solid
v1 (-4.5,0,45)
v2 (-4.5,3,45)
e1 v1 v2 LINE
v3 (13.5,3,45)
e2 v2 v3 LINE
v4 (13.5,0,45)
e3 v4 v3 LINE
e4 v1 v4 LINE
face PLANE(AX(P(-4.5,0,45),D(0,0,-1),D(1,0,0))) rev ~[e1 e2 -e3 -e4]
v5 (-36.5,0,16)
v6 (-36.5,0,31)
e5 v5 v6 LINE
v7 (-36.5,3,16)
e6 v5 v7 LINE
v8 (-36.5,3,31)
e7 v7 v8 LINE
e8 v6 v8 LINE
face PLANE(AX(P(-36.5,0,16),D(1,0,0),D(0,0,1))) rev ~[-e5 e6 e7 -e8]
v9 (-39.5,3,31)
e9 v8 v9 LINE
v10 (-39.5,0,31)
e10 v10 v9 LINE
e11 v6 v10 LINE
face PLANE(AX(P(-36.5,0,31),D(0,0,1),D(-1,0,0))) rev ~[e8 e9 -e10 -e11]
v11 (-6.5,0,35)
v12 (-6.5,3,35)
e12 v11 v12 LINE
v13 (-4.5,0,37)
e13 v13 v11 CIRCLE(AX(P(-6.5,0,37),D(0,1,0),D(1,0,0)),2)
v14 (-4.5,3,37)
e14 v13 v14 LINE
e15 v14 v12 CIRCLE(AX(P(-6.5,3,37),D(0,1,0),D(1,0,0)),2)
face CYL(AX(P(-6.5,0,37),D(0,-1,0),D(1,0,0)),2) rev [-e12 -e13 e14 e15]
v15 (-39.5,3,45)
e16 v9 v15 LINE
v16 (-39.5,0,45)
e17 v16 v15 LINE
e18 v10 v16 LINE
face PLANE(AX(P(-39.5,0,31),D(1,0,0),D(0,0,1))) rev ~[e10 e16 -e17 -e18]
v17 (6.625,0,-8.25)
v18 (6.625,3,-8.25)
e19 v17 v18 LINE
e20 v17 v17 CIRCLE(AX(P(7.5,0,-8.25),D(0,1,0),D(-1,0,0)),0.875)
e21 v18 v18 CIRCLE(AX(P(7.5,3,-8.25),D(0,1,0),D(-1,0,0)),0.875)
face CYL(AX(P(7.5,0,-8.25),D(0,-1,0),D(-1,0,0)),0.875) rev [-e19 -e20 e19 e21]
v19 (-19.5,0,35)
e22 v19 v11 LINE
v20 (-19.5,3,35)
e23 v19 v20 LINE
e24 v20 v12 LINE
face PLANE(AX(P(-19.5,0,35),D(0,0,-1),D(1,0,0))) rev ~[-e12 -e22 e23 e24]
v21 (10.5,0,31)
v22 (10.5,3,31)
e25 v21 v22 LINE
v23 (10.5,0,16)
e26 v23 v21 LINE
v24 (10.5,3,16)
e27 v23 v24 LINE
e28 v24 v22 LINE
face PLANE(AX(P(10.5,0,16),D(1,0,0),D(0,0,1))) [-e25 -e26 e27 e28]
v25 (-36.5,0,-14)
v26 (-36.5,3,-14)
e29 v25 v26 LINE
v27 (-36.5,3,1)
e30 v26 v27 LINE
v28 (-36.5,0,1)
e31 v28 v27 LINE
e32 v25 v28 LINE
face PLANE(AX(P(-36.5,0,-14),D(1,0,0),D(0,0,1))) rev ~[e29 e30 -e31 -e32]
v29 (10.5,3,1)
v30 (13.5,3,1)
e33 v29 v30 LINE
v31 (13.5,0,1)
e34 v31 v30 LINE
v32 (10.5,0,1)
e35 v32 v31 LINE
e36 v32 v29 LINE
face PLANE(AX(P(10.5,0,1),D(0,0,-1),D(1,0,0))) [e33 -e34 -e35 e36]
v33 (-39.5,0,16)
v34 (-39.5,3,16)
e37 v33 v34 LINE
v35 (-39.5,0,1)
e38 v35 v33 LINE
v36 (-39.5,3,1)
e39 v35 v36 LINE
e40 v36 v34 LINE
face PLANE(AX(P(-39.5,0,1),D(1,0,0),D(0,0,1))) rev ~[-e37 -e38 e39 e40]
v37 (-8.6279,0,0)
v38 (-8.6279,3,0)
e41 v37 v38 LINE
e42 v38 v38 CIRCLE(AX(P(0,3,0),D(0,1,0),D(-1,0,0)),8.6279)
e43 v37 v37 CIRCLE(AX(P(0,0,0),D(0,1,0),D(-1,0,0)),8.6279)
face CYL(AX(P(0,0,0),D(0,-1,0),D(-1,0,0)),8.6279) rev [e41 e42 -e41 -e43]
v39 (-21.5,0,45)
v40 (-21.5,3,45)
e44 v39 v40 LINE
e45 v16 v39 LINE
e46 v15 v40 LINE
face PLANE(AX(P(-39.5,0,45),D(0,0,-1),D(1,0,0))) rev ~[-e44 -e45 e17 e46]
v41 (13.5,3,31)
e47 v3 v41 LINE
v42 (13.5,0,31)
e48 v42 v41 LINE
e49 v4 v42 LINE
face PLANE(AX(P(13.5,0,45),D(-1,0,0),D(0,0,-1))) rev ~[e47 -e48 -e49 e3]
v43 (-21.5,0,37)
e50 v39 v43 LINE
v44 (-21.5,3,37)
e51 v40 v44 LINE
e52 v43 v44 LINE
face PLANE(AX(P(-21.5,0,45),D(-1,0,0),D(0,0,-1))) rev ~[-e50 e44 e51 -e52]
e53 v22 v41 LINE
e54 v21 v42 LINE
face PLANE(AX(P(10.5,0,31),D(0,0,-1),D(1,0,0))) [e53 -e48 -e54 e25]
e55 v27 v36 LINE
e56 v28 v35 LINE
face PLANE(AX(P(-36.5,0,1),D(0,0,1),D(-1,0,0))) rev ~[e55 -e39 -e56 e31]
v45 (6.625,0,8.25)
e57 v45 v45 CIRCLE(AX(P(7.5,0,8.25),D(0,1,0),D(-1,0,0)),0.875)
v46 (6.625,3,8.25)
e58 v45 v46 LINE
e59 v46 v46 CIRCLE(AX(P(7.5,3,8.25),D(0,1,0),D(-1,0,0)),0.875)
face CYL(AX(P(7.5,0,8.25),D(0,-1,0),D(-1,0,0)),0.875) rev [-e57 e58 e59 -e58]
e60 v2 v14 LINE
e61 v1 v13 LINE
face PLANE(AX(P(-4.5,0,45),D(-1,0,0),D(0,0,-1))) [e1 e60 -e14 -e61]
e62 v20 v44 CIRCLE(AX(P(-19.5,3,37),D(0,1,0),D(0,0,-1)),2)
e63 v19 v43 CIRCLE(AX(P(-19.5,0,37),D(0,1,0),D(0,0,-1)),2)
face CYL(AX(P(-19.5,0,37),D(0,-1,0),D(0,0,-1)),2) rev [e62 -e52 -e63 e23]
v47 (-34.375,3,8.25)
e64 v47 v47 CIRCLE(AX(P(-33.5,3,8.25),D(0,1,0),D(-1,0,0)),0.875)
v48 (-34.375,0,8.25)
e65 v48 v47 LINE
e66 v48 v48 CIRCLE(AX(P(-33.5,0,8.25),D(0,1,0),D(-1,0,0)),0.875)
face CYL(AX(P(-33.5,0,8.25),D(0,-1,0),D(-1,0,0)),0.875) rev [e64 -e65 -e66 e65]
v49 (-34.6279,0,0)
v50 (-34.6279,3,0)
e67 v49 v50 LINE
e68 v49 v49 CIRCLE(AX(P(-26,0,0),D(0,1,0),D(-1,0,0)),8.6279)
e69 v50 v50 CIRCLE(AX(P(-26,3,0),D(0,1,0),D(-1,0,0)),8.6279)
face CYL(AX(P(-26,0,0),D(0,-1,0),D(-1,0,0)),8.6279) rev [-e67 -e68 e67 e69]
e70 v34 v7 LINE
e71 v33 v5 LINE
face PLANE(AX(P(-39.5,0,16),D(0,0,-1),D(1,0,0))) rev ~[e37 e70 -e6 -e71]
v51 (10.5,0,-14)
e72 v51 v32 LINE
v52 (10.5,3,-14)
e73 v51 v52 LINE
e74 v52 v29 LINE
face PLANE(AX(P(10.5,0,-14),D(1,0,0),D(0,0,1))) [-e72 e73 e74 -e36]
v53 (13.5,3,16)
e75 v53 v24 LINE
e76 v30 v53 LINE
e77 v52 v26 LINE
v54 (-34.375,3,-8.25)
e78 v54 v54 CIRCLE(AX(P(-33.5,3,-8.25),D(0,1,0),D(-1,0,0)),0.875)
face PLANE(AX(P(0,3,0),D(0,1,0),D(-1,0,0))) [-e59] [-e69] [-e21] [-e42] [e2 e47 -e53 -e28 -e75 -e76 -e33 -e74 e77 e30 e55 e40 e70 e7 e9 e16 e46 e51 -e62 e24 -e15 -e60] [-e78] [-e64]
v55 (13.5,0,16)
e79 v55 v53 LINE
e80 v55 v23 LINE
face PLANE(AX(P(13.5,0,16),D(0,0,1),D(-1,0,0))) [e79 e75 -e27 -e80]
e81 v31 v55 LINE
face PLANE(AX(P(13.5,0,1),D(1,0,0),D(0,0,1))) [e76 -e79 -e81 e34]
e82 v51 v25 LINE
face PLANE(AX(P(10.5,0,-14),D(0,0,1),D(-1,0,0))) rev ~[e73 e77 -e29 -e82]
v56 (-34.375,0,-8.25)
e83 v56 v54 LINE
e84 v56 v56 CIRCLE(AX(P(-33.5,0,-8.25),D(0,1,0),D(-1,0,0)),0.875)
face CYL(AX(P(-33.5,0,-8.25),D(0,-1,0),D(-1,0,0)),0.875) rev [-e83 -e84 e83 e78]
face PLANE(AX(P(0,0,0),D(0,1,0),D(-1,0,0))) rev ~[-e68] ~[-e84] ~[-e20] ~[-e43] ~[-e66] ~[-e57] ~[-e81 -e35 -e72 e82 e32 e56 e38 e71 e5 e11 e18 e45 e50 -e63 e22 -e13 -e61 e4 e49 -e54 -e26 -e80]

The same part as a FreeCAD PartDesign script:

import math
import FreeCAD as App
import Part
import Sketcher
from FreeCAD import Vector
Q = App.Units.Quantity

doc = App.newDocument("Part")
body = doc.addObject("PartDesign::Body", "Body")

# Sketch on XZ plane
sketch1 = body.newObject("Sketcher::SketchObject", "Sketch")
sketch1.AttachmentSupport = (doc.getObject("XZ_Plane"), [""])
sketch1.MapMode = "FlatFace"
sketch1.addGeometry([
    Part.LineSegment(Vector(10.5, 1, 0), Vector(10.5, -14, 0)),  # 0
    Part.LineSegment(Vector(10.5, -14, 0), Vector(-36.5, -14, 0)),  # 1
    Part.LineSegment(Vector(-36.5, -14, 0), Vector(-36.5, 1, 0)),  # 2
    Part.LineSegment(Vector(-36.5, 1, 0), Vector(-39.5, 1, 0)),  # 3
    Part.LineSegment(Vector(-39.5, 1, 0), Vector(-39.5, 16, 0)),  # 4
    Part.LineSegment(Vector(-39.5, 16, 0), Vector(-36.5, 16, 0)),  # 5
    Part.LineSegment(Vector(-36.5, 16, 0), Vector(-36.5, 31, 0)),  # 6
    Part.LineSegment(Vector(-36.5, 31, 0), Vector(-39.5, 31, 0)),  # 7
    Part.LineSegment(Vector(-39.5, 31, 0), Vector(-39.5, 45, 0)),  # 8
    Part.LineSegment(Vector(-39.5, 45, 0), Vector(-21.5, 45, 0)),  # 9
    Part.LineSegment(Vector(-21.5, 45, 0), Vector(-21.5, 37, 0)),  # 10
    Part.ArcOfCircle(Part.Circle(Vector(-19.5, 37, 0), Vector(0, 0, 1), 2), math.radians(180), math.radians(270)),  # 11
    Part.LineSegment(Vector(-19.5, 35, 0), Vector(-6.5, 35, 0)),  # 12
    Part.ArcOfCircle(Part.Circle(Vector(-6.5, 37, 0), Vector(0, 0, 1), 2), math.radians(-90), math.radians(0)),  # 13
    Part.LineSegment(Vector(-4.5, 37, 0), Vector(-4.5, 45, 0)),  # 14
    Part.LineSegment(Vector(-4.5, 45, 0), Vector(13.5, 45, 0)),  # 15
    Part.LineSegment(Vector(13.5, 45, 0), Vector(13.5, 31, 0)),  # 16
    Part.LineSegment(Vector(13.5, 31, 0), Vector(10.5, 31, 0)),  # 17
    Part.LineSegment(Vector(10.5, 31, 0), Vector(10.5, 16, 0)),  # 18
    Part.LineSegment(Vector(10.5, 16, 0), Vector(13.5, 16, 0)),  # 19
    Part.LineSegment(Vector(13.5, 16, 0), Vector(13.5, 1, 0)),  # 20
    Part.LineSegment(Vector(13.5, 1, 0), Vector(10.5, 1, 0)),  # 21
    Part.Circle(Vector(7.5, -8.2, 0), Vector(0, 0, 1), 0.9),  # 22
    Part.Circle(Vector(0, 0, 0), Vector(0, 0, 1), 8.6),  # 23
    Part.Circle(Vector(7.5, 8.2, 0), Vector(0, 0, 1), 0.9),  # 24
    Part.Circle(Vector(-26, 0, 0), Vector(0, 0, 1), 8.6),  # 25
    Part.Circle(Vector(-33.5, -8.2, 0), Vector(0, 0, 1), 0.9),  # 26
    Part.Circle(Vector(-33.5, 8.2, 0), Vector(0, 0, 1), 0.9),  # 27
], False)
sketch1.addConstraint([
    Sketcher.Constraint("Coincident", 0, 2, 1, 1),
    Sketcher.Constraint("Coincident", 1, 2, 2, 1),
    Sketcher.Constraint("Coincident", 2, 2, 3, 1),
    Sketcher.Constraint("Coincident", 3, 2, 4, 1),
    Sketcher.Constraint("Coincident", 4, 2, 5, 1),
    Sketcher.Constraint("Coincident", 5, 2, 6, 1),
    Sketcher.Constraint("Coincident", 6, 2, 7, 1),
    Sketcher.Constraint("Coincident", 7, 2, 8, 1),
    Sketcher.Constraint("Coincident", 8, 2, 9, 1),
    Sketcher.Constraint("Coincident", 9, 2, 10, 1),
    Sketcher.Constraint("Tangent", 10, 2, 11, 1),
    Sketcher.Constraint("Tangent", 11, 2, 12, 1),
    Sketcher.Constraint("Tangent", 12, 2, 13, 1),
    Sketcher.Constraint("Tangent", 13, 2, 14, 1),
    Sketcher.Constraint("Coincident", 14, 2, 15, 1),
    Sketcher.Constraint("Coincident", 15, 2, 16, 1),
    Sketcher.Constraint("Coincident", 16, 2, 17, 1),
    Sketcher.Constraint("Coincident", 17, 2, 18, 1),
    Sketcher.Constraint("Coincident", 18, 2, 19, 1),
    Sketcher.Constraint("Coincident", 19, 2, 20, 1),
    Sketcher.Constraint("Coincident", 20, 2, 21, 1),
    Sketcher.Constraint("Coincident", 21, 2, 0, 1),
    Sketcher.Constraint("Vertical", 0),
    Sketcher.Constraint("Horizontal", 1),
    Sketcher.Constraint("Vertical", 2),
    Sketcher.Constraint("Horizontal", 3),
    Sketcher.Constraint("Vertical", 4),
    Sketcher.Constraint("Horizontal", 5),
    Sketcher.Constraint("Vertical", 6),
    Sketcher.Constraint("Horizontal", 7),
    Sketcher.Constraint("Vertical", 8),
    Sketcher.Constraint("Horizontal", 9),
    Sketcher.Constraint("Vertical", 10),
    Sketcher.Constraint("Horizontal", 12),
    Sketcher.Constraint("Vertical", 14),
    Sketcher.Constraint("Horizontal", 15),
    Sketcher.Constraint("Vertical", 16),
    Sketcher.Constraint("Horizontal", 17),
    Sketcher.Constraint("Vertical", 18),
    Sketcher.Constraint("Horizontal", 19),
    Sketcher.Constraint("Vertical", 20),
    Sketcher.Constraint("Horizontal", 21),
    Sketcher.Constraint("Coincident", 23, 3, -1, 1),
    Sketcher.Constraint("Equal", 11, 13),
    Sketcher.Constraint("Equal", 22, 24),
    Sketcher.Constraint("Equal", 23, 25),
    Sketcher.Constraint("Equal", 24, 26),
    Sketcher.Constraint("Equal", 26, 27),
    Sketcher.Constraint("Symmetric", 22, 3, 24, 3, -1),
    Sketcher.Constraint("Symmetric", 26, 3, 27, 3, -1),
    Sketcher.Constraint("PointOnObject", 25, 3, -1),
    Sketcher.Constraint("Horizontal", 22, 3, 26, 3),
    Sketcher.Constraint("Horizontal", 9, 2, 14, 2),
    Sketcher.Constraint("Horizontal", 7, 2, 16, 2),
    Sketcher.Constraint("Horizontal", 5, 2, 18, 2),
    Sketcher.Constraint("Horizontal", 3, 2, 20, 2),
    Sketcher.Constraint("Vertical", 2, 2, 5, 2),
    Sketcher.Constraint("Vertical", 4, 2, 7, 2),
    Sketcher.Constraint("Vertical", 0, 2, 17, 2),
    Sketcher.Constraint("Vertical", 16, 2, 19, 2),
    Sketcher.Constraint("Equal", 9, 15),
    Sketcher.Constraint("Equal", 7, 17),
    Sketcher.Constraint("Equal", 2, 4),
    Sketcher.Constraint("Equal", 4, 6),
    Sketcher.Constraint("Radius", 11, Q("2 mm")),
    Sketcher.Constraint("Diameter", 22, Q("1.75 mm")),
    Sketcher.Constraint("DistanceX", 3, 2, 3, 1, Q("3 mm")),
    Sketcher.Constraint("DistanceX", 9, 1, 9, 2, Q("18 mm")),
    Sketcher.Constraint("DistanceY", 0, 2, 0, 1, Q("15 mm")),
    Sketcher.Constraint("DistanceX", 22, 3, 0, 2, Q("3 mm")),
    Sketcher.Constraint("DistanceX", 1, 2, 26, 3, Q("3 mm")),
    Sketcher.Constraint("DistanceX", 9, 2, 13, 3, Q("15 mm")),
    Sketcher.Constraint("DistanceY", 11, 2, 9, 2, Q("10 mm")),
    Sketcher.Constraint("DistanceY", 8, 1, 8, 2, Q("14 mm")),
    Sketcher.Constraint("DistanceY", -1, 1, 11, 3, Q("37 mm")),
    Sketcher.Constraint("DistanceX", 25, 3, -1, 1, Q("26 mm")),
    Sketcher.Constraint("Diameter", 23, Q("17.2558 mm")),
    Sketcher.Constraint("DistanceX", 11, 3, -1, 1, Q("19.5 mm")),
    Sketcher.Constraint("DistanceY", 22, 3, 24, 3, Q("16.5 mm")),
])
pad1 = body.newObject("PartDesign::Pad", "Pad")
pad1.Profile = sketch1
pad1.Length = 3
pad1.Reversed = True

doc.recompute()
